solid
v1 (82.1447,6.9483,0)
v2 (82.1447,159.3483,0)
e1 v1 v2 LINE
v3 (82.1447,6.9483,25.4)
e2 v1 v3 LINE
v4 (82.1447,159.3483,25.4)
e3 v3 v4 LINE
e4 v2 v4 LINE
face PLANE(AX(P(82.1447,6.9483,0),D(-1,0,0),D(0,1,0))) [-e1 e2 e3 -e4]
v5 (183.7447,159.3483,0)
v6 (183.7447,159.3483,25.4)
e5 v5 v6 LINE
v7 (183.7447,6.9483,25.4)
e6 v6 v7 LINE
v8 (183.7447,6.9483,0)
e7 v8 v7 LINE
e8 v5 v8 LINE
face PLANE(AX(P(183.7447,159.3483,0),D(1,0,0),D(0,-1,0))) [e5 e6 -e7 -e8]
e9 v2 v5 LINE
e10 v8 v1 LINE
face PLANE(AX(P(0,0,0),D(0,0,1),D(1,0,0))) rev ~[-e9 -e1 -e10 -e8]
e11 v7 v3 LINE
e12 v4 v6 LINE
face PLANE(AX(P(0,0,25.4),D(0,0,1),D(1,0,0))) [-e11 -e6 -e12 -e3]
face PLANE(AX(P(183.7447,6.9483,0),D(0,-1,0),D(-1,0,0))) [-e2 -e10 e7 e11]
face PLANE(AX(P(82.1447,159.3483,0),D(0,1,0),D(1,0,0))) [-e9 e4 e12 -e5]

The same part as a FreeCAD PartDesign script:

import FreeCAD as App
import Part
import Sketcher

V = App.Vector
Q = App.Units.Quantity


def add_polygon(sketch, points):
    """Adds a closed chain of lines whose ends are joined by coincident constraints."""
    first, n = sketch.GeometryCount, len(points)
    for a, b in zip(points, points[1:] + points[:1]):
        sketch.addGeometry(Part.LineSegment(App.Vector(*a, 0), App.Vector(*b, 0)), False)
    for i in range(n):
        sketch.addConstraint(Sketcher.Constraint("Coincident", first + i, 2, first + (i + 1) % n, 1))

doc = App.newDocument("Part")
params = doc.addObject("Spreadsheet::Sheet", "Params")
for row, (alias, value) in enumerate([
    ("sketch1_width", "4 in"),
    ("sketch1_height", "6 in"),
    ("pad1_length", "1 in"),
], start=1):
    params.set(f"A{row}", alias)
    params.set(f"B{row}", "=" + value)
    params.setAlias(f"B{row}", alias)

body = doc.addObject("PartDesign::Body", "Body")

sketch1 = doc.addObject("Sketcher::SketchObject", "Sketch")
body.addObject(sketch1)
sketch1.AttachmentSupport = (doc.XY_Plane, [""])
sketch1.MapMode = "FlatFace"
add_polygon(sketch1, [(183.7447, 159.3483), (82.1447, 159.3483), (82.1447, 6.9483), (183.7447, 6.9483)])
sketch1.addConstraint([
    Sketcher.Constraint("Horizontal", 0),
    Sketcher.Constraint("Vertical", 1),
    Sketcher.Constraint("Horizontal", 2),
    Sketcher.Constraint("Vertical", 3),
    Sketcher.Constraint("DistanceX", 0, 2, 0, 1, Q("4 in")),
    Sketcher.Constraint("DistanceY", 1, 2, 1, 1, Q("6 in")),
    Sketcher.Constraint("DistanceX", -1, 1, 0, 2, Q("82.1447 mm")),
    Sketcher.Constraint("DistanceY", -1, 1, 0, 2, Q("159.3483 mm")),
])
sketch1.setExpression("Constraints[8]", "Params.sketch1_width")
sketch1.setExpression("Constraints[9]", "Params.sketch1_height")
pad1 = doc.addObject("PartDesign::Pad", "Pad")
body.addObject(pad1)
pad1.Profile = sketch1
pad1.setExpression("Length", "Params.pad1_length")

doc.recompute()
